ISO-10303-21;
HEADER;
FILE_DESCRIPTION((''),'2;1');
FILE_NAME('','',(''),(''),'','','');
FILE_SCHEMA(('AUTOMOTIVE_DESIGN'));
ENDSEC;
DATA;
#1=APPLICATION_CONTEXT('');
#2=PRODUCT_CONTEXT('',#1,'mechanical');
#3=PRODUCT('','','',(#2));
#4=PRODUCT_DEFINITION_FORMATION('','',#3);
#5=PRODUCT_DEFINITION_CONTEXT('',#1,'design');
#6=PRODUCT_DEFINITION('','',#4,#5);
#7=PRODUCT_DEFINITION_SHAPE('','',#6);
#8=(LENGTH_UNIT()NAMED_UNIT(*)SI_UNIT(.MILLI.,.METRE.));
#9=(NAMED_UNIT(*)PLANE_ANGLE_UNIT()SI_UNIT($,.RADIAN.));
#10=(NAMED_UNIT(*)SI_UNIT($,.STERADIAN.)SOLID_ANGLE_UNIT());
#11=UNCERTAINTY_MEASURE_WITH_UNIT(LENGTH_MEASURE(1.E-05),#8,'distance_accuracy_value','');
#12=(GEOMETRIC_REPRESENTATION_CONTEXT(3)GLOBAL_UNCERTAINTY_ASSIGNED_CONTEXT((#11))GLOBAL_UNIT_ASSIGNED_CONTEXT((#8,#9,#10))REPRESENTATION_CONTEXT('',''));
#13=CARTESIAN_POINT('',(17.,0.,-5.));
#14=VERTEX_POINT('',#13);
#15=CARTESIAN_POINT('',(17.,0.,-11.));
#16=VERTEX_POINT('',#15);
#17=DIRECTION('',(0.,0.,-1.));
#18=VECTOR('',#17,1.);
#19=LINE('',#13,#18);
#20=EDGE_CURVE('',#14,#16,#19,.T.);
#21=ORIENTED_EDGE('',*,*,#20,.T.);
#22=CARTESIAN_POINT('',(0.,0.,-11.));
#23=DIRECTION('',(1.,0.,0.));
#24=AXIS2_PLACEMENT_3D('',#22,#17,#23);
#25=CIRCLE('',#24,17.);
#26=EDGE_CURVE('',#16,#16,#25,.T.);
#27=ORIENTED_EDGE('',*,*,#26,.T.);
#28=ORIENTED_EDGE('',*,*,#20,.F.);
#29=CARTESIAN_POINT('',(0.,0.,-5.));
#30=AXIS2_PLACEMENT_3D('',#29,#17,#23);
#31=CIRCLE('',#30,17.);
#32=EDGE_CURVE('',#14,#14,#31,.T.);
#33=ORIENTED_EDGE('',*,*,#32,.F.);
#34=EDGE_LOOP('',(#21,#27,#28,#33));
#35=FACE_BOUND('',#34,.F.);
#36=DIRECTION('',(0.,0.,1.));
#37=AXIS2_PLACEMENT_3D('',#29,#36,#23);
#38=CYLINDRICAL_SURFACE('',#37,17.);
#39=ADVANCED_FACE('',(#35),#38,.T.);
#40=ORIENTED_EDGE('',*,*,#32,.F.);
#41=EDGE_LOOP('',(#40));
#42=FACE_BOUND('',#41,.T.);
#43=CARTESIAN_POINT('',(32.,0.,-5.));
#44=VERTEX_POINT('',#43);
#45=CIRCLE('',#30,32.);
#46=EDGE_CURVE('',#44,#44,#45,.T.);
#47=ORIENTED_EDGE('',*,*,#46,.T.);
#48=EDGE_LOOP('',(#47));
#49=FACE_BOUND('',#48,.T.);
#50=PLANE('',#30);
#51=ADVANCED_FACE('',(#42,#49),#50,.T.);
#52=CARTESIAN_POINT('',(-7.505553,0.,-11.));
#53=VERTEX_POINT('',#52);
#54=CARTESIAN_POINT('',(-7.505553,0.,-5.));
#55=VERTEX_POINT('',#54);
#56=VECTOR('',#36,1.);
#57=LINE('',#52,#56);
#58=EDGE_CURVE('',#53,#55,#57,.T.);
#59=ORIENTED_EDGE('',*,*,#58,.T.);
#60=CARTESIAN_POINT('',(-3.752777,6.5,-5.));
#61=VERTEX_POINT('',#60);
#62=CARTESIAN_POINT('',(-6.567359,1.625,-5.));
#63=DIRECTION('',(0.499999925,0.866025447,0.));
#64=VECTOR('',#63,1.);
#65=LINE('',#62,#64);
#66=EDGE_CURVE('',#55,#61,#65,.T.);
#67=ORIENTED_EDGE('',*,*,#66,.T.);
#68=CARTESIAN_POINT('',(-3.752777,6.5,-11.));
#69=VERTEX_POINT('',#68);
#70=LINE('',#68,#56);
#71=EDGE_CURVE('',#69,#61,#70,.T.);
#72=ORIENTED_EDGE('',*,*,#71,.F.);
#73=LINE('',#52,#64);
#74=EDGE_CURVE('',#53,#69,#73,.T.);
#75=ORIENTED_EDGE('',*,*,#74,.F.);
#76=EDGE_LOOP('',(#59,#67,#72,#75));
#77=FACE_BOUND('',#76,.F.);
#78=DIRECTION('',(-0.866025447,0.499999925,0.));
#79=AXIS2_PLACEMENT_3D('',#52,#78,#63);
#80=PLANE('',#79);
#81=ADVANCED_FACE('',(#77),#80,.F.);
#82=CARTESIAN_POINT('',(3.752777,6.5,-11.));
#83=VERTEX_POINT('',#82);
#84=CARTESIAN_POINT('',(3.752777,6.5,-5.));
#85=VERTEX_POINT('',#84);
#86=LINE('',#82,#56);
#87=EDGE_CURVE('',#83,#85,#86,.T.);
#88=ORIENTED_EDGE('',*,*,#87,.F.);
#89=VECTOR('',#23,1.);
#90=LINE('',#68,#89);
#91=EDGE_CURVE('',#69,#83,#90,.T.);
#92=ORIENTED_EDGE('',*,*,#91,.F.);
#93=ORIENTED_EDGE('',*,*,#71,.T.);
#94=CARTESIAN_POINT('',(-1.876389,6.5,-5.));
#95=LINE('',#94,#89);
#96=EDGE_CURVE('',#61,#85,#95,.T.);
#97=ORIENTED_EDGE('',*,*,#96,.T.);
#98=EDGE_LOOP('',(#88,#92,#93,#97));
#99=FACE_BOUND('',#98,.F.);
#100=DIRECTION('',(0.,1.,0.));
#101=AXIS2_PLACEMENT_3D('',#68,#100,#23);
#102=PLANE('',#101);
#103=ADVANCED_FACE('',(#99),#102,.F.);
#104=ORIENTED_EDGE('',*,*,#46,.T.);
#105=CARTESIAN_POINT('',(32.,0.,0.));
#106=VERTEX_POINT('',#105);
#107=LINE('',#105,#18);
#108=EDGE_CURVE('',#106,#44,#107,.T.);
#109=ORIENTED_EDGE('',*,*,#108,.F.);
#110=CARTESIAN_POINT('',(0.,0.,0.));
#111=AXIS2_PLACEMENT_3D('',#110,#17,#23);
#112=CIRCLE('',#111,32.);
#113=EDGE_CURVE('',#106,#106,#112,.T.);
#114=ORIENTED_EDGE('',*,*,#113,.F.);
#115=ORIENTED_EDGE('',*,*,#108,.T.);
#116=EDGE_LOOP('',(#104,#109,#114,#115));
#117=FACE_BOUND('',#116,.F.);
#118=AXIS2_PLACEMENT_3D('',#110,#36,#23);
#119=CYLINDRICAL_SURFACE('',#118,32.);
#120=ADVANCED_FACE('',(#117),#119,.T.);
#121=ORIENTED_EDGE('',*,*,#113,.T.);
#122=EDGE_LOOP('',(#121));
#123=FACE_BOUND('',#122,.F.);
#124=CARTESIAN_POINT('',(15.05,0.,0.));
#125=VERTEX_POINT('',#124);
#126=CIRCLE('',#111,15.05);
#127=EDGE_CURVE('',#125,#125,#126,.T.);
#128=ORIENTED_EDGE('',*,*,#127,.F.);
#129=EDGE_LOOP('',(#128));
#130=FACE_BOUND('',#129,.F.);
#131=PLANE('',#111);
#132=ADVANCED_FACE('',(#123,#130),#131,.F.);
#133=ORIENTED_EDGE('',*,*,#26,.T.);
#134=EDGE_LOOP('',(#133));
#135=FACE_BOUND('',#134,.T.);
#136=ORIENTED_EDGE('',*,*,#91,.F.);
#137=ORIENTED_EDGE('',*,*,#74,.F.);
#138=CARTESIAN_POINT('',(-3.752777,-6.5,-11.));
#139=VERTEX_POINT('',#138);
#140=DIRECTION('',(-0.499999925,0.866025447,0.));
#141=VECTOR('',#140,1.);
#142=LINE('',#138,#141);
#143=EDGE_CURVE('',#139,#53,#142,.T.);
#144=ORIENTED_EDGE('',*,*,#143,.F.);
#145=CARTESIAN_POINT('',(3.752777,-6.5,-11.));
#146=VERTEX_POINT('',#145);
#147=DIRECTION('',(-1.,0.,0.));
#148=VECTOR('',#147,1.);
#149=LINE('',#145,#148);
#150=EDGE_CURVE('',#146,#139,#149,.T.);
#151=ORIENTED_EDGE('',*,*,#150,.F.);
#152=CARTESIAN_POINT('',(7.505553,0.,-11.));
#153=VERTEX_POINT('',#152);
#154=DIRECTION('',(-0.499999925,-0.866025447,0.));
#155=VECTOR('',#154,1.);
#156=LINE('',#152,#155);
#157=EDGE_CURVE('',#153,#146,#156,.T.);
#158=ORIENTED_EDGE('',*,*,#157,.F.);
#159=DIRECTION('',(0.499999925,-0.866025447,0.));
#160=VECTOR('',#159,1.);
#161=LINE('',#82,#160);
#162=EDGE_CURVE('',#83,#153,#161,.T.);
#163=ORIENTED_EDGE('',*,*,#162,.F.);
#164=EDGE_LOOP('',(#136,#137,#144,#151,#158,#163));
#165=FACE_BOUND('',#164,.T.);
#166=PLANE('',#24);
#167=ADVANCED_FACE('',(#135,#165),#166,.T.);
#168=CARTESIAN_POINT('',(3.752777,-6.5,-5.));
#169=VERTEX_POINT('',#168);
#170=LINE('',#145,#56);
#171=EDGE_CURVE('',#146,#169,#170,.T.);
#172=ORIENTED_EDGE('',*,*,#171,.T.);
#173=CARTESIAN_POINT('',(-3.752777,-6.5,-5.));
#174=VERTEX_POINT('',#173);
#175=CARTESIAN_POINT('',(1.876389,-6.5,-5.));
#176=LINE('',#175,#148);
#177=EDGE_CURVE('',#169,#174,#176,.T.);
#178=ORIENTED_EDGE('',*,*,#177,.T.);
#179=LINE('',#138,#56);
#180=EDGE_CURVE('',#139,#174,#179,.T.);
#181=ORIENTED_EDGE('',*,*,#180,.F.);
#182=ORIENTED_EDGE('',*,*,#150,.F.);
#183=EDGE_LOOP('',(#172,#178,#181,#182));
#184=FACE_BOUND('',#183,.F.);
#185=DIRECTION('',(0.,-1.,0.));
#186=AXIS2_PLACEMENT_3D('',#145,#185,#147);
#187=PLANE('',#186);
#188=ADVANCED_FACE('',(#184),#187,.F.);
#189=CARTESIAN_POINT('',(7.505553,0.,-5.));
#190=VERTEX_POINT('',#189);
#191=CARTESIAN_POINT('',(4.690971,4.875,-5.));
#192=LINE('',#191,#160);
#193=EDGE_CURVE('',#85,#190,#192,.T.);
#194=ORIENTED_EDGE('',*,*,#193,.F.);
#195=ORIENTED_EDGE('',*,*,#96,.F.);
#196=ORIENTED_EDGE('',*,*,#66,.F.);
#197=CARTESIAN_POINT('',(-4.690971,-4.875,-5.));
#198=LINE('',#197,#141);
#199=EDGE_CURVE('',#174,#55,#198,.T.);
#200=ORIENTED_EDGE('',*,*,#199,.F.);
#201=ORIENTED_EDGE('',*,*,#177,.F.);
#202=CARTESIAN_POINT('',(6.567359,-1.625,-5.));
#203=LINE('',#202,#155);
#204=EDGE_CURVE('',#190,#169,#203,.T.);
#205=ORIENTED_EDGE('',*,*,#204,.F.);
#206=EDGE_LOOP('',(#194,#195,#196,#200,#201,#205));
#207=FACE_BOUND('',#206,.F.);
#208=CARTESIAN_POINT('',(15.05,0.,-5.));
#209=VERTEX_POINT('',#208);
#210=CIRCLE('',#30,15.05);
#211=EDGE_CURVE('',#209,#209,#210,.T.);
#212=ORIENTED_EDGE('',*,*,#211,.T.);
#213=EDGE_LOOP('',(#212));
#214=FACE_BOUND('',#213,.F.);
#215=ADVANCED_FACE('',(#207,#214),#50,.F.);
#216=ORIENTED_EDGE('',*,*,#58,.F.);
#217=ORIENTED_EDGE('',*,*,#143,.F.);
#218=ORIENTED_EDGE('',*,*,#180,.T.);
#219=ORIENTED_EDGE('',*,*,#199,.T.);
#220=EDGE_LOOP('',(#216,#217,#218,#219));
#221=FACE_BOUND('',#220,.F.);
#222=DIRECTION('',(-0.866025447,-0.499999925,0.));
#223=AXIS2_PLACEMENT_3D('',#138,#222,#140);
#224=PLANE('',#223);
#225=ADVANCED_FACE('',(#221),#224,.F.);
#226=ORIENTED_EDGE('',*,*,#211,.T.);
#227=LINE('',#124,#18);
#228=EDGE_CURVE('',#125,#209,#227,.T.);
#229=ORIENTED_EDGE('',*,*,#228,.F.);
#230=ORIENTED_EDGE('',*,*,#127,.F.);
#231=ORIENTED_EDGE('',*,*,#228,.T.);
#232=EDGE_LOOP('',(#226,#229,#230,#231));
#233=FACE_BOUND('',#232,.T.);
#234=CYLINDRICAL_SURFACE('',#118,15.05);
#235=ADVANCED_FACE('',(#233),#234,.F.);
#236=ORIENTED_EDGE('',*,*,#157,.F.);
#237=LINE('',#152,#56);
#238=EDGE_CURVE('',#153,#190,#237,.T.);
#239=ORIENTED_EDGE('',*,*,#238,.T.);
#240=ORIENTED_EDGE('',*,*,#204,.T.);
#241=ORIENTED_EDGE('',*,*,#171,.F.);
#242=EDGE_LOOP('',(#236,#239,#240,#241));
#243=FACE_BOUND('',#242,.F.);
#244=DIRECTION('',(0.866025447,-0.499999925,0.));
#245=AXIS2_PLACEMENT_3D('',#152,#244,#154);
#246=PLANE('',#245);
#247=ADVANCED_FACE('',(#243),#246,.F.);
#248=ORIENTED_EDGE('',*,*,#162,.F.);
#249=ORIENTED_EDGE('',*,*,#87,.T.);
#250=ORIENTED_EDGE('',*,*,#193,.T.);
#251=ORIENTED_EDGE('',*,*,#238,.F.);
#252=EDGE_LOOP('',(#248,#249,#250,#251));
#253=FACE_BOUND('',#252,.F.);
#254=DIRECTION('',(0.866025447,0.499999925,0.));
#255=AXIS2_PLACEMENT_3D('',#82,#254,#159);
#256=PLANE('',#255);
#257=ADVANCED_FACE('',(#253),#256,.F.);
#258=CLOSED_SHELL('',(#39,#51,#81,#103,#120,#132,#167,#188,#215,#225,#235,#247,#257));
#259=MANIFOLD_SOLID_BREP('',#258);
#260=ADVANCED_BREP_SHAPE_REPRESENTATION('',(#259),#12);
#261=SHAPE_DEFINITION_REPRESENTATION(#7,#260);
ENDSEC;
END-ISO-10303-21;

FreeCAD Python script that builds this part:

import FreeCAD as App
import Part
import Sketcher
from FreeCAD import Vector
Q = App.Units.Quantity

doc = App.newDocument("Part")
params = doc.addObject("Spreadsheet::Sheet", "Params")
for row, (alias, value) in enumerate([
    ("pad1_length", "10 mm"),
    ("sketch2_diameter", "34 mm"),
    ("pad2_length", "6 mm"),
    ("sketch3_diameter", "64 mm"),
    ("sketch3_diameter2", "30.1 mm"),
    ("pad3_length", "5 mm"),
], start=1):
    params.set(f"A{row}", alias)
    params.set(f"B{row}", "=" + value)
    params.setAlias(f"B{row}", alias)

body = doc.addObject("PartDesign::Body", "Body")

# Sketch on XY plane
sketch1 = doc.addObject("Sketcher::SketchObject", "Sketch")
body.addObject(sketch1)
sketch1.AttachmentSupport = (doc.XY_Plane, [""])
sketch1.MapMode = "FlatFace"
sketch1.AttachmentOffset = App.Placement(Vector(0, 0, -11), App.Rotation())
sketch1.addGeometry(Part.LineSegment(Vector(-3.752777, 6.5, 0), Vector(3.752777, 6.5, 0)), False)
sketch1.addGeometry(Part.LineSegment(Vector(3.752777, 6.5, 0), Vector(7.505553, 0, 0)), False)
sketch1.addGeometry(Part.LineSegment(Vector(7.505553, 0, 0), Vector(3.752777, -6.5, 0)), False)
sketch1.addGeometry(Part.LineSegment(Vector(3.752777, -6.5, 0), Vector(-3.752777, -6.5, 0)), False)
sketch1.addGeometry(Part.LineSegment(Vector(-3.752777, -6.5, 0), Vector(-7.505553, 0, 0)), False)
sketch1.addGeometry(Part.LineSegment(Vector(-7.505553, 0, 0), Vector(-3.752777, 6.5, 0)), False)
sketch1.addConstraint(Sketcher.Constraint("Coincident", 0, 2, 1, 1))
sketch1.addConstraint(Sketcher.Constraint("Coincident", 1, 2, 2, 1))
sketch1.addConstraint(Sketcher.Constraint("Coincident", 2, 2, 3, 1))
sketch1.addConstraint(Sketcher.Constraint("Coincident", 3, 2, 4, 1))
sketch1.addConstraint(Sketcher.Constraint("Coincident", 4, 2, 5, 1))
sketch1.addConstraint(Sketcher.Constraint("Coincident", 5, 2, 0, 1))
sketch1.addConstraint(Sketcher.Constraint("Horizontal", 0))
sketch1.addConstraint(Sketcher.Constraint("Horizontal", 3))
sketch1.addConstraint(Sketcher.Constraint("Symmetric", 0, 2, 3, 2, -1, 1))
sketch1.addConstraint(Sketcher.Constraint("Symmetric", 1, 2, 4, 2, -1, 1))
sketch1.addConstraint(Sketcher.Constraint("PointOnObject", 1, 2, -1))
sketch1.addConstraint(Sketcher.Constraint("Parallel", 2, 5))
sketch1.addConstraint(Sketcher.Constraint("Vertical", 0, 2, 2, 2))
sketch1.addConstraint(Sketcher.Constraint("Angle", 1, Q("-60.000005 deg")))
sketch1.addConstraint(Sketcher.Constraint("DistanceY", 2, 2, 0, 2, 13.0))
sketch1.addConstraint(Sketcher.Constraint("DistanceX", 0, 1, 0, 2, 7.505554))
pad1 = doc.addObject("PartDesign::Pad", "Pad")
body.addObject(pad1)
pad1.Profile = sketch1
pad1.setExpression("Length", "Params.pad1_length")
body2 = doc.addObject("PartDesign::Body", "Body001")

# Sketch on XY plane
sketch2 = doc.addObject("Sketcher::SketchObject", "Sketch001")
body2.addObject(sketch2)
sketch2.AttachmentSupport = (doc.getObject("XY_Plane001"), [""])
sketch2.MapMode = "FlatFace"
sketch2.AttachmentOffset = App.Placement(Vector(0, 0, -5), App.Rotation())
sketch2.addGeometry(Part.Circle(Vector(0, 0, 0), Vector(0, 0, 1), 17), False)
sketch2.addConstraint(Sketcher.Constraint("Coincident", 0, 3, -1, 1))
sketch2.addConstraint(Sketcher.Constraint("Diameter", 0, 34.0))
sketch2.setExpression("Constraints[1]", "Params.sketch2_diameter")
pad2 = doc.addObject("PartDesign::Pad", "Pad001")
body2.addObject(pad2)
pad2.Profile = sketch2
pad2.setExpression("Length", "Params.pad2_length")
pad2.Reversed = True
doc.recompute()

boolean = doc.addObject("PartDesign::Boolean", "Boolean")
body2.addObject(boolean)
boolean.Type = "Cut"
boolean.addObjects([body])
body3 = doc.addObject("PartDesign::Body", "Body002")

# Sketch on XY plane
sketch3 = doc.addObject("Sketcher::SketchObject", "Sketch002")
body3.addObject(sketch3)
sketch3.AttachmentSupport = (doc.getObject("XY_Plane002"), [""])
sketch3.MapMode = "FlatFace"
sketch3.addGeometry(Part.Circle(Vector(0, 0, 0), Vector(0, 0, 1), 32), False)
sketch3.addGeometry(Part.Circle(Vector(0, 0, 0), Vector(0, 0, 1), 15.05), False)
sketch3.addConstraint(Sketcher.Constraint("Coincident", 0, 3, -1, 1))
sketch3.addConstraint(Sketcher.Constraint("Coincident", 1, 3, -1, 1))
sketch3.addConstraint(Sketcher.Constraint("Diameter", 0, 64.0))
sketch3.addConstraint(Sketcher.Constraint("Diameter", 1, 30.1))
sketch3.setExpression("Constraints[2]", "Params.sketch3_diameter")
sketch3.setExpression("Constraints[3]", "Params.sketch3_diameter2")
pad3 = doc.addObject("PartDesign::Pad", "Pad002")
body3.addObject(pad3)
pad3.Profile = sketch3
pad3.setExpression("Length", "Params.pad3_length")
pad3.Reversed = True
doc.recompute()

boolean2 = doc.addObject("PartDesign::Boolean", "Boolean001")
body3.addObject(boolean2)
boolean2.Type = "Fuse"
boolean2.addObjects([body2])

doc.recompute()
